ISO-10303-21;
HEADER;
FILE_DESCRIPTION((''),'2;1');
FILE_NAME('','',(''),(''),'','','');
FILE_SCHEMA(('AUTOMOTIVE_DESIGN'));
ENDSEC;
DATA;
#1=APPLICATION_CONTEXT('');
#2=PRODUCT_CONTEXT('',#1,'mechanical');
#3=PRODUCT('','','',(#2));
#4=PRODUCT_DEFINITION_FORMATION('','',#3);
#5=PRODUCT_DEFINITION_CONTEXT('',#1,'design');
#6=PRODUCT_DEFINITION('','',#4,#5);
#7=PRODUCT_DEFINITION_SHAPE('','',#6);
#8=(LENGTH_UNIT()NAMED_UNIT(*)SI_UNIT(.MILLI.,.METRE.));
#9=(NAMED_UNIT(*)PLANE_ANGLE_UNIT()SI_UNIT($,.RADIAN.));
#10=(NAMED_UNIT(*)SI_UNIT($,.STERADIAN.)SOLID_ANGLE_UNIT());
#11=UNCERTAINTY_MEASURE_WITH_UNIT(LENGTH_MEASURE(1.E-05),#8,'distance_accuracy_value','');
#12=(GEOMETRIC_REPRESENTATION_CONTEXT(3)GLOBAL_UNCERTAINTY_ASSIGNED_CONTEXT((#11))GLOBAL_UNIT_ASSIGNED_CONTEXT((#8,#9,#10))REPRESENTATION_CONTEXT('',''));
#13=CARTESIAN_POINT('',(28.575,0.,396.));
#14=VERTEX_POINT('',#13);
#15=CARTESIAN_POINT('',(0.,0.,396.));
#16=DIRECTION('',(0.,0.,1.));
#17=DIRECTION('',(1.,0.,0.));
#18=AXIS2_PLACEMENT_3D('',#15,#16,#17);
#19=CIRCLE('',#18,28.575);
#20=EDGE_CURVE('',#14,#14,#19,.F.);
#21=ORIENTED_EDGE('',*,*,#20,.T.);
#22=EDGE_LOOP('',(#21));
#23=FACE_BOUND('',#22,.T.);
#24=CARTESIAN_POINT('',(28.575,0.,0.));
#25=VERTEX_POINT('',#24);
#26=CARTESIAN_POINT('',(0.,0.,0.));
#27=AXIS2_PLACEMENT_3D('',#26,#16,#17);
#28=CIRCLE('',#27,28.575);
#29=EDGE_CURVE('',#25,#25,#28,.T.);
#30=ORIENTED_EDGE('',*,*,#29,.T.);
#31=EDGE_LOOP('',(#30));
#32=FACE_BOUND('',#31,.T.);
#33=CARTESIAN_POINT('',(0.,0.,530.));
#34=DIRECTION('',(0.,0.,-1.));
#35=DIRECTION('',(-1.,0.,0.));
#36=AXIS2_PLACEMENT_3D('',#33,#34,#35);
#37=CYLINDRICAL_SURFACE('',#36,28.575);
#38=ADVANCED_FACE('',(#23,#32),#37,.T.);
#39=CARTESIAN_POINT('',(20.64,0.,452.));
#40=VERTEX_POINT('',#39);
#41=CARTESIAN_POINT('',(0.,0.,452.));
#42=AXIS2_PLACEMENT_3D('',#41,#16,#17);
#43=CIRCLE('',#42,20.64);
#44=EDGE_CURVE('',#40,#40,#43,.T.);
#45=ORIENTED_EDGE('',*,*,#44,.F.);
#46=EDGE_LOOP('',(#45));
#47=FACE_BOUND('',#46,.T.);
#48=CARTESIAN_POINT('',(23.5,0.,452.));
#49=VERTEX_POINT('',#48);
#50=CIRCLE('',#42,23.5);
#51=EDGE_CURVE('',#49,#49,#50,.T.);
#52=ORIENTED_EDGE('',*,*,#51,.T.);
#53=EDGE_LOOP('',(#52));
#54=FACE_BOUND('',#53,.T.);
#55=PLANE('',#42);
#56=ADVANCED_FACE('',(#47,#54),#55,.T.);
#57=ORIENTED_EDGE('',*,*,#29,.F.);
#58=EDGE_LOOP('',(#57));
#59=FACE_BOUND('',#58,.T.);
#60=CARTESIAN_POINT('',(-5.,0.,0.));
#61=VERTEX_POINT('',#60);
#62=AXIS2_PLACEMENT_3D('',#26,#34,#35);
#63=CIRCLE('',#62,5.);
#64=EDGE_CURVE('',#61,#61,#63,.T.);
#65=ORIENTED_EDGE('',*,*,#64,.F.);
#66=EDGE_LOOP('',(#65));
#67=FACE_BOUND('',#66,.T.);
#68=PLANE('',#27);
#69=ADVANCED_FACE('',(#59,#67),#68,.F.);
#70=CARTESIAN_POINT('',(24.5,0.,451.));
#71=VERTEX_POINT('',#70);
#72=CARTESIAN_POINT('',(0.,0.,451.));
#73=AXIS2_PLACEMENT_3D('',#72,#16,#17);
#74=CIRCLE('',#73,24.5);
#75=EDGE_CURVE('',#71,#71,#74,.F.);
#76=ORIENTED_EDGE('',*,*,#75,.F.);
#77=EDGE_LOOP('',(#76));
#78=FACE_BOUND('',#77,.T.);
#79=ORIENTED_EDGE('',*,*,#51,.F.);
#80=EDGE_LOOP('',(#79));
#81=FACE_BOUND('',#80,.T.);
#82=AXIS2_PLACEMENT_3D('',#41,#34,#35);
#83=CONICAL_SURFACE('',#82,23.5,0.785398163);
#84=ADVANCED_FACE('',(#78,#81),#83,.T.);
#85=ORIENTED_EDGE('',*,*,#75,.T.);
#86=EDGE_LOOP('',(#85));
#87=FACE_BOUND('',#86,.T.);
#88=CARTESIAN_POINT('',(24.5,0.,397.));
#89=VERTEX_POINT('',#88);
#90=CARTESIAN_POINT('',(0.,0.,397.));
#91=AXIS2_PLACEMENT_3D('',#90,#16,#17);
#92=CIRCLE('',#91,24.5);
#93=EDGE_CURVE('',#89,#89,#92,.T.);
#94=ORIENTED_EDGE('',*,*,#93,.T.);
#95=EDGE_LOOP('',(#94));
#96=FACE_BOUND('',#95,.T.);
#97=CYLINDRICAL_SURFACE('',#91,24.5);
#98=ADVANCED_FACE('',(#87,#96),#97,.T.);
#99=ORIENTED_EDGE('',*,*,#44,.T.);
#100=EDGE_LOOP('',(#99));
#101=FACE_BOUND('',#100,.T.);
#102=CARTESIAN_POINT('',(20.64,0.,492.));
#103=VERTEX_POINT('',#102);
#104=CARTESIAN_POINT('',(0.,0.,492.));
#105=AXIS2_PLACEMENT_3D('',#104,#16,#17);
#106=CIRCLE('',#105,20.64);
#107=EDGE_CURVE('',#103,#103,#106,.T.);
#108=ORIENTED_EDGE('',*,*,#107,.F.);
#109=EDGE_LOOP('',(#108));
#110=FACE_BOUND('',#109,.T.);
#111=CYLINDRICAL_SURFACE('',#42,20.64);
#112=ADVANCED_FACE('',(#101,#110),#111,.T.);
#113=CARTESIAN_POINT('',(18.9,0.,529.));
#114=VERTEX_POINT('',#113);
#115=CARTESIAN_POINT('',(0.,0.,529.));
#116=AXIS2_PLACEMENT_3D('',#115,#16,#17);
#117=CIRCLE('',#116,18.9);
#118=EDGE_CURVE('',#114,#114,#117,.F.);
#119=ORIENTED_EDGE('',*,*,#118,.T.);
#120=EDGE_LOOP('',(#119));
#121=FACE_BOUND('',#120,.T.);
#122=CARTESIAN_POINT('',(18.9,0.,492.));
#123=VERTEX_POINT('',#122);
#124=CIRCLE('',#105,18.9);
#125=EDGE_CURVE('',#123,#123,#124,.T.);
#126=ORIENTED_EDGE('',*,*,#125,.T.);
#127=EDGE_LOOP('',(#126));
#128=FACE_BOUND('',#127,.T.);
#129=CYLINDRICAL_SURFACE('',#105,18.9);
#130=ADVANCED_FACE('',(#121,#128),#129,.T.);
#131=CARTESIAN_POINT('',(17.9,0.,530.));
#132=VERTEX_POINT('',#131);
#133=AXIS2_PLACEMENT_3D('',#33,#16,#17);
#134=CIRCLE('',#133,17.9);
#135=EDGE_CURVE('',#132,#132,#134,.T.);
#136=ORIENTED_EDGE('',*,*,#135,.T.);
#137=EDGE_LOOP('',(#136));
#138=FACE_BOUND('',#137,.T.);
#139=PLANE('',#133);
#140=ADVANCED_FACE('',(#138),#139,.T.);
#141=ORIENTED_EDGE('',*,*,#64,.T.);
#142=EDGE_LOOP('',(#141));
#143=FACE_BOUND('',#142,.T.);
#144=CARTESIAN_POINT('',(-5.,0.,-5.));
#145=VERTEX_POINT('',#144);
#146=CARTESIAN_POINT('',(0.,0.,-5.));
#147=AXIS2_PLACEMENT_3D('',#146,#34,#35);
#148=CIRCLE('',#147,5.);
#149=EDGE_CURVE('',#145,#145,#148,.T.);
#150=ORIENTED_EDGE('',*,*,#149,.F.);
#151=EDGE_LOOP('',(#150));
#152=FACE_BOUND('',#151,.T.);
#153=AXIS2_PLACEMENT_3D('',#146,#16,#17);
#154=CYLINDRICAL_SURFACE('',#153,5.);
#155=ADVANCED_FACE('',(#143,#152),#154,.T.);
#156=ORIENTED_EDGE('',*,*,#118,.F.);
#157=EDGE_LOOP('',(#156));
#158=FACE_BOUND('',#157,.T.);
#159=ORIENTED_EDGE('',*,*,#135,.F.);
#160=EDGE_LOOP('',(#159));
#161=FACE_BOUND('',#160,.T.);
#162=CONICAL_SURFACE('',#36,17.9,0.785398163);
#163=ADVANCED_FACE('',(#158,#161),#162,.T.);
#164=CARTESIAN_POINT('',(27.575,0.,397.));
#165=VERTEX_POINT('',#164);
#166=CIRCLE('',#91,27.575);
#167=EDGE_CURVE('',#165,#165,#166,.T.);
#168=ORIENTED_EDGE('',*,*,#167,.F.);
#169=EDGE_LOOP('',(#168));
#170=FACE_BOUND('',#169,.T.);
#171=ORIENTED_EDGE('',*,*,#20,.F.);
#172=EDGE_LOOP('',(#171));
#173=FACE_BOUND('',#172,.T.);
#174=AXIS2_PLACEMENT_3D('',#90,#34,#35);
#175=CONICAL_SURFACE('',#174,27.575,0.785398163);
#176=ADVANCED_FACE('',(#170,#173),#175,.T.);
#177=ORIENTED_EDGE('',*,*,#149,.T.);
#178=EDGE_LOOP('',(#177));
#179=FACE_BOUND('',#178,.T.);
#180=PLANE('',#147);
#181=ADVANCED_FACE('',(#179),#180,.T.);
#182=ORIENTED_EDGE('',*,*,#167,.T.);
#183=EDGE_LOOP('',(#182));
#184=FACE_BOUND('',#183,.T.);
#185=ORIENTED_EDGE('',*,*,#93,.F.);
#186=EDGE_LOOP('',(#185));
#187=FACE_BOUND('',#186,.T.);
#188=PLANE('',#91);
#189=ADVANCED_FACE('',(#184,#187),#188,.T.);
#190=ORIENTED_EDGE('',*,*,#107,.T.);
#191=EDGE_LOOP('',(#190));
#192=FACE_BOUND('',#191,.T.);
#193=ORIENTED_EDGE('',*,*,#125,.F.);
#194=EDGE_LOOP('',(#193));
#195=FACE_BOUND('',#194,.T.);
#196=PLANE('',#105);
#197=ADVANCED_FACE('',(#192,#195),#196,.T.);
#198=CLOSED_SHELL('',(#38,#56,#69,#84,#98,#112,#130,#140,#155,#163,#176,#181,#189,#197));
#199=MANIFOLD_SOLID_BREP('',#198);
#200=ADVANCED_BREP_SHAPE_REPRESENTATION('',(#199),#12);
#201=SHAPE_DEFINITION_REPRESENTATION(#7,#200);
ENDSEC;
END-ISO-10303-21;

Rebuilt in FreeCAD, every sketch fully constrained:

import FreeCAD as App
import Part
import Sketcher
from FreeCAD import Vector


def edges_at(feature, points):
    """Names of the edges that pass closest to the given points."""
    edges = feature.Shape.Edges
    near = lambda p: min(range(len(edges)), key=lambda i: edges[i].distToShape(Part.Vertex(*p))[0])
    return sorted({f"Edge{near(p) + 1}" for p in points})

doc = App.newDocument("Part")
body = doc.addObject("PartDesign::Body", "Body")

# Sketch on XY plane
sketch1 = doc.addObject("Sketcher::SketchObject", "Sketch")
body.addObject(sketch1)
sketch1.AttachmentSupport = (doc.XY_Plane, [""])
sketch1.MapMode = "FlatFace"
sketch1.addGeometry(Part.Circle(Vector(0, 0, 0), Vector(0, 0, 1), 28.575), False)
sketch1.addConstraint([
    Sketcher.Constraint("Coincident", 0, 3, -1, 1),
    Sketcher.Constraint("Diameter", 0, 57.15),
])
pad1 = doc.addObject("PartDesign::Pad", "Pad")
body.addObject(pad1)
pad1.Profile = sketch1
pad1.Length = 530

# Sketch on XY plane
sketch2 = doc.addObject("Sketcher::SketchObject", "Sketch001")
body.addObject(sketch2)
sketch2.AttachmentSupport = (doc.XY_Plane, [""])
sketch2.MapMode = "FlatFace"
sketch2.AttachmentOffset = App.Placement(Vector(0, 0, 530), App.Rotation())
sketch2.addGeometry([
    Part.LineSegment(Vector(-83.188, 83.188, 0), Vector(-83.188, -83.188, 0)),  # 0
    Part.LineSegment(Vector(-83.188, -83.188, 0), Vector(83.188, -83.188, 0)),  # 1
    Part.LineSegment(Vector(83.188, -83.188, 0), Vector(83.188, 83.188, 0)),  # 2
    Part.LineSegment(Vector(83.188, 83.188, 0), Vector(-83.188, 83.188, 0)),  # 3
    Part.Circle(Vector(0, 0, 0), Vector(0, 0, 1), 18.9),  # 4
], False)
sketch2.addConstraint([
    Sketcher.Constraint("Coincident", 0, 2, 1, 1),
    Sketcher.Constraint("Coincident", 1, 2, 2, 1),
    Sketcher.Constraint("Coincident", 2, 2, 3, 1),
    Sketcher.Constraint("Coincident", 3, 2, 0, 1),
    Sketcher.Constraint("Vertical", 0),
    Sketcher.Constraint("Horizontal", 1),
    Sketcher.Constraint("Vertical", 2),
    Sketcher.Constraint("Horizontal", 3),
    Sketcher.Constraint("Coincident", 4, 3, -1, 1),
    Sketcher.Constraint("Symmetric", 0, 2, 2, 2, -1, 1),
    Sketcher.Constraint("Equal", 3, 0),
    Sketcher.Constraint("Diameter", 4, 37.8),
    Sketcher.Constraint("DistanceX", 1, 1, 1, 2, 166.376),
])
pocket1 = doc.addObject("PartDesign::Pocket", "Pocket")
body.addObject(pocket1)
pocket1.Profile = sketch2
pocket1.Length = 38

# Sketch on XY plane
sketch3 = doc.addObject("Sketcher::SketchObject", "Sketch002")
body.addObject(sketch3)
sketch3.AttachmentSupport = (doc.XY_Plane, [""])
sketch3.MapMode = "FlatFace"
sketch3.AttachmentOffset = App.Placement(Vector(0, 0, 492), App.Rotation())
sketch3.addGeometry([
    Part.LineSegment(Vector(-83.188, 83.188, 0), Vector(-83.188, -83.188, 0)),  # 0
    Part.LineSegment(Vector(-83.188, -83.188, 0), Vector(83.188, -83.188, 0)),  # 1
    Part.LineSegment(Vector(83.188, -83.188, 0), Vector(83.188, 83.188, 0)),  # 2
    Part.LineSegment(Vector(83.188, 83.188, 0), Vector(-83.188, 83.188, 0)),  # 3
    Part.Circle(Vector(0, 0, 0), Vector(0, 0, 1), 20.64),  # 4
], False)
sketch3.addConstraint([
    Sketcher.Constraint("Coincident", 0, 2, 1, 1),
    Sketcher.Constraint("Coincident", 1, 2, 2, 1),
    Sketcher.Constraint("Coincident", 2, 2, 3, 1),
    Sketcher.Constraint("Coincident", 3, 2, 0, 1),
    Sketcher.Constraint("Vertical", 0),
    Sketcher.Constraint("Horizontal", 1),
    Sketcher.Constraint("Vertical", 2),
    Sketcher.Constraint("Horizontal", 3),
    Sketcher.Constraint("Coincident", 4, 3, -1, 1),
    Sketcher.Constraint("Symmetric", 0, 2, 2, 2, -1, 1),
    Sketcher.Constraint("Equal", 3, 0),
    Sketcher.Constraint("Diameter", 4, 41.28),
    Sketcher.Constraint("DistanceX", 1, 1, 1, 2, 166.376),
])
pocket2 = doc.addObject("PartDesign::Pocket", "Pocket001")
body.addObject(pocket2)
pocket2.Profile = sketch3
pocket2.Length = 40

# Sketch on XY plane
sketch4 = doc.addObject("Sketcher::SketchObject", "Sketch003")
body.addObject(sketch4)
sketch4.AttachmentSupport = (doc.XY_Plane, [""])
sketch4.MapMode = "FlatFace"
sketch4.AttachmentOffset = App.Placement(Vector(0, 0, 452), App.Rotation())
sketch4.addGeometry([
    Part.LineSegment(Vector(-83.188, 83.188, 0), Vector(-83.188, -83.188, 0)),  # 0
    Part.LineSegment(Vector(-83.188, -83.188, 0), Vector(83.188, -83.188, 0)),  # 1
    Part.LineSegment(Vector(83.188, -83.188, 0), Vector(83.188, 83.188, 0)),  # 2
    Part.LineSegment(Vector(83.188, 83.188, 0), Vector(-83.188, 83.188, 0)),  # 3
    Part.Circle(Vector(0, 0, 0), Vector(0, 0, 1), 24.5),  # 4
], False)
sketch4.addConstraint([
    Sketcher.Constraint("Coincident", 0, 2, 1, 1),
    Sketcher.Constraint("Coincident", 1, 2, 2, 1),
    Sketcher.Constraint("Coincident", 2, 2, 3, 1),
    Sketcher.Constraint("Coincident", 3, 2, 0, 1),
    Sketcher.Constraint("Vertical", 0),
    Sketcher.Constraint("Horizontal", 1),
    Sketcher.Constraint("Vertical", 2),
    Sketcher.Constraint("Horizontal", 3),
    Sketcher.Constraint("Coincident", 4, 3, -1, 1),
    Sketcher.Constraint("Symmetric", 0, 2, 2, 2, -1, 1),
    Sketcher.Constraint("Equal", 3, 0),
    Sketcher.Constraint("Diameter", 4, 49.0),
    Sketcher.Constraint("DistanceX", 1, 1, 1, 2, 166.376),
])
pocket3 = doc.addObject("PartDesign::Pocket", "Pocket002")
body.addObject(pocket3)
pocket3.Profile = sketch4
pocket3.Length = 55

# Sketch on XY plane
sketch5 = doc.addObject("Sketcher::SketchObject", "Sketch004")
body.addObject(sketch5)
sketch5.AttachmentSupport = (doc.XY_Plane, [""])
sketch5.MapMode = "FlatFace"
sketch5.addGeometry(Part.Circle(Vector(0, 0, 0), Vector(0, 0, 1), 5), False)
sketch5.addConstraint([
    Sketcher.Constraint("Coincident", 0, 3, -1, 1),
    Sketcher.Constraint("Diameter", 0, 10.0),
])
pad2 = doc.addObject("PartDesign::Pad", "Pad001")
body.addObject(pad2)
pad2.Profile = sketch5
pad2.Length = 5
pad2.Reversed = True
doc.recompute()

chamfer = doc.addObject("PartDesign::Chamfer", "Chamfer")
body.addObject(chamfer)
chamfer.Base = (pad2, edges_at(pad2, [(-18.9, 0, 530), (-28.575, 0, 397), (-24.5, 0, 452)]))
chamfer.Size = 1

doc.recompute()
